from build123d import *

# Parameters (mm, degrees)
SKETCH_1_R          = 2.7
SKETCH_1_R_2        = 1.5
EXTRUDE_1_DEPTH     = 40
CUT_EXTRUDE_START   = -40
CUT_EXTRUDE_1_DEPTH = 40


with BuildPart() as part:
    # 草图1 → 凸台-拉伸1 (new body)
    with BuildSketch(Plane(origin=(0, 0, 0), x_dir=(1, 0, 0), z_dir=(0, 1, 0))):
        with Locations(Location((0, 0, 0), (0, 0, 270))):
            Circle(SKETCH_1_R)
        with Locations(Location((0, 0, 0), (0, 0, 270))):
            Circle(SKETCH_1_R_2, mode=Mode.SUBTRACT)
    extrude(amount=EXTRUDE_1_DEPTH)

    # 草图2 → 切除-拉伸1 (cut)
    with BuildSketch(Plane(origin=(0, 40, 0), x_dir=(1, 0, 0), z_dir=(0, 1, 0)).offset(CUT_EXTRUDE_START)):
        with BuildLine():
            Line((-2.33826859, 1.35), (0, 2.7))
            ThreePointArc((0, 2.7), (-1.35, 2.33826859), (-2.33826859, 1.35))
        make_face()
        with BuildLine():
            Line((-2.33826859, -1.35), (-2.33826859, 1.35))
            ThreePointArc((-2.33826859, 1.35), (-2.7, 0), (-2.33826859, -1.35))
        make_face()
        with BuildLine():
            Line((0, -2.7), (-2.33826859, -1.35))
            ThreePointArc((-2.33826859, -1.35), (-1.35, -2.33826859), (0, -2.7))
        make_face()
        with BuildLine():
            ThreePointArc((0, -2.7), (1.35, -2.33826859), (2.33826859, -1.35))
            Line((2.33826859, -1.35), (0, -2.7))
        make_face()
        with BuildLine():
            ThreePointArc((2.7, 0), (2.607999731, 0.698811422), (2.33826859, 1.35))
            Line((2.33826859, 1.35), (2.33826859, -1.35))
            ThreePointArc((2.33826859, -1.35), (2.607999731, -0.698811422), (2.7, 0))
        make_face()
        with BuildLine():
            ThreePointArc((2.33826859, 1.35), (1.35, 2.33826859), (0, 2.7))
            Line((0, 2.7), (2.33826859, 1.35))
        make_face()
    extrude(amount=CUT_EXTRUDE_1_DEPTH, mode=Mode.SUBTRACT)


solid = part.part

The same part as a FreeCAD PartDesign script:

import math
import FreeCAD as App
import Part
import Sketcher
from FreeCAD import Vector
Q = App.Units.Quantity

doc = App.newDocument("Part")
params = doc.addObject("Spreadsheet::Sheet", "Params")
for row, (alias, value) in enumerate([
    ("sketch1_diameter", "3 mm"),
    ("sketch1_diameter2", "5.4 mm"),
    ("pad1_length", "40 mm"),
    ("sketch2_radius", "2.7 mm"),
    ("pocket1_length", "40 mm"),
], start=1):
    params.set(f"A{row}", alias)
    params.set(f"B{row}", "=" + value)
    params.setAlias(f"B{row}", alias)

body = doc.addObject("PartDesign::Body", "Body")

# Sketch on XZ plane
sketch1 = doc.addObject("Sketcher::SketchObject", "Sketch")
body.addObject(sketch1)
sketch1.AttachmentSupport = (doc.XZ_Plane, [""])
sketch1.MapMode = "FlatFace"
sketch1.addGeometry([
    Part.Circle(Vector(0, 0, 0), Vector(0, 0, 1), 2.7),
    Part.Circle(Vector(0, 0, 0), Vector(0, 0, 1), 1.5),
], False)
sketch1.addConstraint([
    Sketcher.Constraint("Coincident", 0, 3, -1, 1),
    Sketcher.Constraint("Coincident", 1, 3, -1, 1),
    Sketcher.Constraint("Diameter", 1, Q("3 mm")),
    Sketcher.Constraint("Diameter", 0, Q("5.4 mm")),
])
sketch1.setExpression("Constraints[2]", "Params.sketch1_diameter")
sketch1.setExpression("Constraints[3]", "Params.sketch1_diameter2")
pad1 = doc.addObject("PartDesign::Pad", "Pad")
body.addObject(pad1)
pad1.Profile = sketch1
pad1.setExpression("Length", "Params.pad1_length")
pad1.Reversed = True

# Sketch on XZ plane
sketch2 = doc.addObject("Sketcher::SketchObject", "Sketch001")
body.addObject(sketch2)
sketch2.AttachmentSupport = (doc.XZ_Plane, [""])
sketch2.MapMode = "FlatFace"
sketch2.addGeometry([
    Part.LineSegment(Vector(-2.3, -1.4, 0), Vector(0, -2.7, 0)),  # 0
    Part.ArcOfCircle(Part.Circle(Vector(0, 0, 0), Vector(0, 0, 1), 2.7), math.radians(-150), math.radians(-90)),  # 1
    Part.LineSegment(Vector(-2.3, 1.4, 0), Vector(-2.3, -1.4, 0)),  # 2
    Part.ArcOfCircle(Part.Circle(Vector(0, 0, 0), Vector(0, 0, 1), 2.7), math.radians(150), math.radians(210)),  # 3
    Part.LineSegment(Vector(0, 2.7, 0), Vector(-2.3, 1.4, 0)),  # 4
    Part.ArcOfCircle(Part.Circle(Vector(0, 0, 0), Vector(0, 0, 1), 2.7), math.radians(90), math.radians(150)),  # 5
    Part.ArcOfCircle(Part.Circle(Vector(0, 0, 0), Vector(0, 0, 1), 2.7), math.radians(30), math.radians(90)),  # 6
    Part.LineSegment(Vector(2.3, 1.4, 0), Vector(0, 2.7, 0)),  # 7
    Part.ArcOfCircle(Part.Circle(Vector(0, 0, 0), Vector(0, 0, 1), 2.7), math.radians(-30), math.radians(0)),  # 8
    Part.LineSegment(Vector(2.3, -1.4, 0), Vector(2.3, 1.4, 0)),  # 9
    Part.ArcOfCircle(Part.Circle(Vector(0, 0, 0), Vector(0, 0, 1), 2.7), math.radians(0), math.radians(30)),  # 10
    Part.ArcOfCircle(Part.Circle(Vector(0, 0, 0), Vector(0, 0, 1), 2.7), math.radians(-90), math.radians(-30)),  # 11
    Part.LineSegment(Vector(0, -2.7, 0), Vector(2.3, -1.4, 0)),  # 12
], False)
sketch2.addConstraint([
    Sketcher.Constraint("Coincident", 0, 1, 1, 1),
    Sketcher.Constraint("Coincident", 1, 2, 0, 2),
    Sketcher.Constraint("Coincident", 2, 1, 3, 1),
    Sketcher.Constraint("Coincident", 3, 2, 2, 2),
    Sketcher.Constraint("Coincident", 4, 1, 5, 1),
    Sketcher.Constraint("Coincident", 5, 2, 4, 2),
    Sketcher.Constraint("Coincident", 6, 1, 7, 1),
    Sketcher.Constraint("Coincident", 7, 2, 6, 2),
    Sketcher.Constraint("Coincident", 8, 1, 9, 1),
    Sketcher.Constraint("Coincident", 9, 2, 10, 2),
    Sketcher.Constraint("Tangent", 10, 1, 8, 2),
    Sketcher.Constraint("Coincident", 11, 1, 12, 1),
    Sketcher.Constraint("Coincident", 12, 2, 11, 2),
    Sketcher.Constraint("Vertical", 2),
    Sketcher.Constraint("Vertical", 9),
    Sketcher.Constraint("Coincident", 1, 3, -1, 1),
    Sketcher.Constraint("Coincident", 3, 3, -1, 1),
    Sketcher.Constraint("Coincident", 5, 3, -1, 1),
    Sketcher.Constraint("Coincident", 6, 3, -1, 1),
    Sketcher.Constraint("Coincident", 8, 3, -1, 1),
    Sketcher.Constraint("Coincident", 11, 3, -1, 1),
    Sketcher.Constraint("Coincident", 3, 2, 0, 1),
    Sketcher.Constraint("Coincident", 5, 2, 2, 1),
    Sketcher.Constraint("Coincident", 7, 2, 4, 1),
    Sketcher.Constraint("Coincident", 9, 2, 6, 1),
    Sketcher.Constraint("Coincident", 11, 1, 1, 2),
    Sketcher.Constraint("Coincident", 12, 2, 8, 1),
    Sketcher.Constraint("PointOnObject", 1, 2, -2),
    Sketcher.Constraint("PointOnObject", 4, 1, -2),
    Sketcher.Constraint("PointOnObject", 10, 1, -1),
    Sketcher.Constraint("Parallel", 0, 7),
    Sketcher.Constraint("Radius", 1, Q("2.7 mm")),
    Sketcher.Constraint("Angle", 0, Q("-30 deg")),
])
sketch2.setExpression("Constraints[31]", "Params.sketch2_radius")
pocket1 = doc.addObject("PartDesign::Pocket", "Pocket")
body.addObject(pocket1)
pocket1.Profile = sketch2
pocket1.setExpression("Length", "Params.pocket1_length")

doc.recompute()
